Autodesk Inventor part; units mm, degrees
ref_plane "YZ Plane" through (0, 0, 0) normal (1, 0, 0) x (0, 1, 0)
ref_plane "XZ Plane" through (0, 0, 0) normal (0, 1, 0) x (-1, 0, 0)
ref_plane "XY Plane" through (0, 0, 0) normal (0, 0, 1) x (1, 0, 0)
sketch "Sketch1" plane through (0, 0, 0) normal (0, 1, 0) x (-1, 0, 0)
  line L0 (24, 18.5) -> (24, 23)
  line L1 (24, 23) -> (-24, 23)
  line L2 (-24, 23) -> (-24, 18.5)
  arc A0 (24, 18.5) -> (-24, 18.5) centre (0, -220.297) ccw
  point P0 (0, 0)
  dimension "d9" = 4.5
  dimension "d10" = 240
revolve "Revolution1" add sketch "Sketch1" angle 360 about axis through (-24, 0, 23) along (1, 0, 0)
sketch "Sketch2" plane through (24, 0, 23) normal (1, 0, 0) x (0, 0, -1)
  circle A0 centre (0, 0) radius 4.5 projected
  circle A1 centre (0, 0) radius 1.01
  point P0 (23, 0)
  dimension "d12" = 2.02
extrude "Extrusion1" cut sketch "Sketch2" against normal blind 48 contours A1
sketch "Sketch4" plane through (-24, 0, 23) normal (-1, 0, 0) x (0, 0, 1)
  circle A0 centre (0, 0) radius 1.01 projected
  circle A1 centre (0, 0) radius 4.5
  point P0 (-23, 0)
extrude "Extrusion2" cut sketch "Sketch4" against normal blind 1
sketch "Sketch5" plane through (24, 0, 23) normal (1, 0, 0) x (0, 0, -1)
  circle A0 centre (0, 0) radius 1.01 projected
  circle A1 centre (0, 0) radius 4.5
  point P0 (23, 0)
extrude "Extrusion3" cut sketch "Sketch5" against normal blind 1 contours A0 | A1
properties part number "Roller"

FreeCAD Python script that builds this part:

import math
import FreeCAD as App
import Part
import Sketcher

V = App.Vector

doc = App.newDocument("Part")
body = doc.addObject("PartDesign::Body", "Body")

# Sketch on XZ plane
sketch1 = doc.addObject("Sketcher::SketchObject", "Sketch")
body.addObject(sketch1)
sketch1.AttachmentSupport = (doc.XZ_Plane, [""])
sketch1.MapMode = "FlatFace"
sketch1.addGeometry(Part.ArcOfCircle(Part.Circle(V(0, -220.3, 0), V(0, 0, 1), 240), math.radians(84.26), math.radians(95.74)), False)
sketch1.addGeometry(Part.LineSegment(V(-24, 18.5, 0), V(-24, 23, 0)), False)
sketch1.addGeometry(Part.LineSegment(V(-24, 23, 0), V(24, 23, 0)), False)
sketch1.addGeometry(Part.LineSegment(V(24, 23, 0), V(24, 18.5, 0)), False)
sketch1.addGeometry(Part.LineSegment(V(-24, 23, 0), V(24, 23, 0)), True)  # axis
sketch1.addConstraint(Sketcher.Constraint("Coincident", 0, 2, 1, 1))
sketch1.addConstraint(Sketcher.Constraint("Coincident", 1, 2, 2, 1))
sketch1.addConstraint(Sketcher.Constraint("Coincident", 2, 2, 3, 1))
sketch1.addConstraint(Sketcher.Constraint("Coincident", 3, 2, 0, 1))
sketch1.addConstraint(Sketcher.Constraint("Vertical", 1))
sketch1.addConstraint(Sketcher.Constraint("Horizontal", 2))
sketch1.addConstraint(Sketcher.Constraint("Vertical", 3))
sketch1.addConstraint(Sketcher.Constraint("Horizontal", 4))
sketch1.addConstraint(Sketcher.Constraint("Coincident", 4, 1, 1, 2))
sketch1.addConstraint(Sketcher.Constraint("Symmetric", 0, 2, 3, 2, -2))
sketch1.addConstraint(Sketcher.Constraint("Vertical", 3, 2, 4, 2))
sketch1.addConstraint(Sketcher.Constraint("Radius", 0, 240.0))
sketch1.addConstraint(Sketcher.Constraint("DistanceY", 1, 1, 1, 2, 4.5))
sketch1.addConstraint(Sketcher.Constraint("DistanceX", 2, 1, 2, 2, 48.0))
sketch1.addConstraint(Sketcher.Constraint("DistanceY", -1, 1, 1, 2, 23.0))
revolution = doc.addObject("PartDesign::Revolution", "Revolution")
body.addObject(revolution)
revolution.Profile = sketch1
revolution.ReferenceAxis = (sketch1, ["Axis0"])
revolution.Angle = 360

# Sketch on YZ plane
sketch2 = doc.addObject("Sketcher::SketchObject", "Sketch001")
body.addObject(sketch2)
sketch2.AttachmentSupport = (doc.YZ_Plane, [""])
sketch2.MapMode = "FlatFace"
sketch2.AttachmentOffset = App.Placement(V(0, 0, 24), App.Rotation())
sketch2.addGeometry(Part.Circle(V(0, 23, 0), V(0, 0, 1), 1), False)
sketch2.addConstraint(Sketcher.Constraint("PointOnObject", 0, 3, -2))
sketch2.addConstraint(Sketcher.Constraint("Diameter", 0, 2.02))
sketch2.addConstraint(Sketcher.Constraint("DistanceY", -1, 1, 0, 3, 23.0))
pocket1 = doc.addObject("PartDesign::Pocket", "Pocket")
body.addObject(pocket1)
pocket1.Profile = sketch2
pocket1.Length = 48

# Sketch on YZ plane
sketch3 = doc.addObject("Sketcher::SketchObject", "Sketch002")
body.addObject(sketch3)
sketch3.AttachmentSupport = (doc.YZ_Plane, [""])
sketch3.MapMode = "FlatFace"
sketch3.AttachmentOffset = App.Placement(V(0, 0, -24), App.Rotation())
sketch3.addGeometry(Part.Circle(V(0, 23, 0), V(0, 0, 1), 4.5), False)
sketch3.addGeometry(Part.Circle(V(0, 23, 0), V(0, 0, 1), 1), False)
sketch3.addConstraint(Sketcher.Constraint("Coincident", 1, 3, 0, 3))
sketch3.addConstraint(Sketcher.Constraint("PointOnObject", 0, 3, -2))
sketch3.addConstraint(Sketcher.Constraint("Diameter", 0, 9.0))
sketch3.addConstraint(Sketcher.Constraint("Diameter", 1, 2.02))
sketch3.addConstraint(Sketcher.Constraint("DistanceY", -1, 1, 0, 3, 23.0))
pocket2 = doc.addObject("PartDesign::Pocket", "Pocket001")
body.addObject(pocket2)
pocket2.Profile = sketch3
pocket2.Length = 1
pocket2.Reversed = True

# Sketch on YZ plane
sketch4 = doc.addObject("Sketcher::SketchObject", "Sketch003")
body.addObject(sketch4)
sketch4.AttachmentSupport = (doc.YZ_Plane, [""])
sketch4.MapMode = "FlatFace"
sketch4.AttachmentOffset = App.Placement(V(0, 0, 24), App.Rotation())
sketch4.addGeometry(Part.Circle(V(0, 23, 0), V(0, 0, 1), 4.5), False)
sketch4.addConstraint(Sketcher.Constraint("PointOnObject", 0, 3, -2))
sketch4.addConstraint(Sketcher.Constraint("Diameter", 0, 9.0))
sketch4.addConstraint(Sketcher.Constraint("DistanceY", -1, 1, 0, 3, 23.0))
pocket3 = doc.addObject("PartDesign::Pocket", "Pocket002")
body.addObject(pocket3)
pocket3.Profile = sketch4
pocket3.Length = 1

doc.recompute()
